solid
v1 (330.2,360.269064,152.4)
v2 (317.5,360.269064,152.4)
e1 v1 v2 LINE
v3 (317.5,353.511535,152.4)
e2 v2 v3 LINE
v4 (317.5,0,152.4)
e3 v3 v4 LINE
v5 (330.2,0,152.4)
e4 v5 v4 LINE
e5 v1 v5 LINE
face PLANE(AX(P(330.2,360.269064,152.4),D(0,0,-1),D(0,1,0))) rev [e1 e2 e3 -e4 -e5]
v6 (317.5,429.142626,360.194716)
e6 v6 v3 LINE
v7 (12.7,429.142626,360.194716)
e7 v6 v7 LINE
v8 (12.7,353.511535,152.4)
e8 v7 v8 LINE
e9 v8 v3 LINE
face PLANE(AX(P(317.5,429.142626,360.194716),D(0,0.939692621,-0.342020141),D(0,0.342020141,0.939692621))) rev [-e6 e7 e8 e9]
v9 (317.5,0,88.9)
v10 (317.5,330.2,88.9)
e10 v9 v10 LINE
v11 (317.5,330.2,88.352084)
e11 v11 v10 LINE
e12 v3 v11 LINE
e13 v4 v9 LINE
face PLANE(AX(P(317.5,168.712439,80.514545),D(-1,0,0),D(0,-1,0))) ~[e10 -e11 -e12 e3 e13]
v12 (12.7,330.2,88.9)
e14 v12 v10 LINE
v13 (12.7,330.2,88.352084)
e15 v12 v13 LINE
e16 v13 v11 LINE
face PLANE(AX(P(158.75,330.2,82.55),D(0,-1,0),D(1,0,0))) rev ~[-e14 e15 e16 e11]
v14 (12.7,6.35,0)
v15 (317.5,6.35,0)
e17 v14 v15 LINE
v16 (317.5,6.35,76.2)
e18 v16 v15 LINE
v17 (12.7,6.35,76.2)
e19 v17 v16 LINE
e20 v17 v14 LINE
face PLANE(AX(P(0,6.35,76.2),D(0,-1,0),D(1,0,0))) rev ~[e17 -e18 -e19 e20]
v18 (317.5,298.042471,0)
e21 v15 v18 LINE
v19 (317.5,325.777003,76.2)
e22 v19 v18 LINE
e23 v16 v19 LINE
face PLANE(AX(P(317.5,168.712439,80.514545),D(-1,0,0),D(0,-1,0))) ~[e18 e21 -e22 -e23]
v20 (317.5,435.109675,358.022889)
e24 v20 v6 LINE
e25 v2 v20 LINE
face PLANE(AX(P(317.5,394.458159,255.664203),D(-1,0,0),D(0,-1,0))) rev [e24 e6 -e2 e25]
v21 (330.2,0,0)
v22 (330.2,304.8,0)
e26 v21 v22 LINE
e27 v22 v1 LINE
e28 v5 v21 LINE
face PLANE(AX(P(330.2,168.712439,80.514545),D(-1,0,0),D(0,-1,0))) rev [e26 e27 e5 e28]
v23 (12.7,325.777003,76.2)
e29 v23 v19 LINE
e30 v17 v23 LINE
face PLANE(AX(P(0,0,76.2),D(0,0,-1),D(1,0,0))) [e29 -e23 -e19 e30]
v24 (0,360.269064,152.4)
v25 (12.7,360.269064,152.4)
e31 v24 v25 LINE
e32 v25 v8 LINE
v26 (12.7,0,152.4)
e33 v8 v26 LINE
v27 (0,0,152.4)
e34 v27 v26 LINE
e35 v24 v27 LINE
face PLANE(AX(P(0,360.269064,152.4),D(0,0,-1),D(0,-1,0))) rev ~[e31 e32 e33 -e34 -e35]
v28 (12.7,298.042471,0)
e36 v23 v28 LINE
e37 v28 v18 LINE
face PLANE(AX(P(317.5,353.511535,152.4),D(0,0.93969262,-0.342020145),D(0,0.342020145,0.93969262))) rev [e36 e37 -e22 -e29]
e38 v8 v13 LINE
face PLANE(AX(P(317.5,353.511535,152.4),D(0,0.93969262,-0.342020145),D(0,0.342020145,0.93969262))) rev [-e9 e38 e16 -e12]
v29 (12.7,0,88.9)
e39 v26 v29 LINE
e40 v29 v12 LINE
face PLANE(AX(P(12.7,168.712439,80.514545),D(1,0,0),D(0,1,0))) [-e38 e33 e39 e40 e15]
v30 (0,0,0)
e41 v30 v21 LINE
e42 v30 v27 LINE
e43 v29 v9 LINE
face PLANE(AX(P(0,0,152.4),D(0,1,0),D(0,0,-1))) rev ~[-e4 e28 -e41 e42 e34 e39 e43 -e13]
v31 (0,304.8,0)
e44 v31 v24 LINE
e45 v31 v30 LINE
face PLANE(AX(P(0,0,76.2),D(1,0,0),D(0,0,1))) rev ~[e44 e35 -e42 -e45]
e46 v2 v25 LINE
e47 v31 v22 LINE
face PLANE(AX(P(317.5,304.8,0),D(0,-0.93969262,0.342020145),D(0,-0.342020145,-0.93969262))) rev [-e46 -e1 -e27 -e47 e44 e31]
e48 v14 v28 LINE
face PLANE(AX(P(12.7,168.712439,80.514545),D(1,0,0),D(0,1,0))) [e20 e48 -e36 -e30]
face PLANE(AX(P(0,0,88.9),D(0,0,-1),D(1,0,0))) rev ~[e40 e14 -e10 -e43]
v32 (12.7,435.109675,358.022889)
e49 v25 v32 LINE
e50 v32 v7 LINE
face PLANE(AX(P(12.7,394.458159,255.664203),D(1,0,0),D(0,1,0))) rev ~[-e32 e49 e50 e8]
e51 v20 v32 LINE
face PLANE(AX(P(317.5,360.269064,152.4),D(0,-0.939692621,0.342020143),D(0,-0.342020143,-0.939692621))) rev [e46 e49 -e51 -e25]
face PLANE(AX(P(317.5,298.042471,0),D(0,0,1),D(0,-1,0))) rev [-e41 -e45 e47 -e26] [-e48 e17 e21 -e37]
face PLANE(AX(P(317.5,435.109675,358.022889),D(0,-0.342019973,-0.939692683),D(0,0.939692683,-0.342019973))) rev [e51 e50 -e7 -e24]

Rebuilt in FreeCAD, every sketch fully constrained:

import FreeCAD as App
import Part
import Sketcher
Q = App.Units.Quantity

doc = App.newDocument("Part")
body = doc.addObject("PartDesign::Body", "Body")

sketch1 = body.newObject("Sketcher::SketchObject", "Sketch")
sketch1.AttachmentSupport = (doc.getObject("YZ_Plane"), [""])
sketch1.MapMode = "FlatFace"
sketch1.addGeometry(Part.LineSegment(App.Vector(0, 152, 0), App.Vector(0, 0, 0)), False)
sketch1.addGeometry(Part.LineSegment(App.Vector(0, 0, 0), App.Vector(305, 0, 0)), False)
sketch1.addGeometry(Part.LineSegment(App.Vector(305, 0, 0), App.Vector(360, 152, 0)), False)
sketch1.addGeometry(Part.LineSegment(App.Vector(360, 152, 0), App.Vector(0, 152, 0)), False)
sketch1.addConstraint(Sketcher.Constraint("Coincident", 0, 2, 1, 1))
sketch1.addConstraint(Sketcher.Constraint("Coincident", 1, 2, 2, 1))
sketch1.addConstraint(Sketcher.Constraint("Coincident", 2, 2, 3, 1))
sketch1.addConstraint(Sketcher.Constraint("Coincident", 3, 2, 0, 1))
sketch1.addConstraint(Sketcher.Constraint("Vertical", 0))
sketch1.addConstraint(Sketcher.Constraint("Horizontal", 1))
sketch1.addConstraint(Sketcher.Constraint("Horizontal", 3))
sketch1.addConstraint(Sketcher.Constraint("Coincident", 0, 2, -1, 1))
sketch1.addConstraint(Sketcher.Constraint("DistanceX", 1, 1, 1, 2, Q("12 in")))
sketch1.addConstraint(Sketcher.Constraint("DistanceY", 0, 2, 0, 1, Q("6 in")))
sketch1.addConstraint(Sketcher.Constraint("Angle", 2, Q("70 deg")))
pad1 = body.newObject("PartDesign::Pad", "Pad")
pad1.Profile = sketch1
pad1.Length = Q("0.5 in")

sketch2 = body.newObject("Sketcher::SketchObject", "Sketch001")
sketch2.AttachmentSupport = (doc.getObject("YZ_Plane"), [""])
sketch2.MapMode = "FlatFace"
sketch2.AttachmentOffset = App.Placement(App.Vector(0, 0, 0.5 * 25.4), App.Rotation())
sketch2.addGeometry(Part.LineSegment(App.Vector(429, 360, 0), App.Vector(354, 152, 0)), False)
sketch2.addGeometry(Part.LineSegment(App.Vector(354, 152, 0), App.Vector(298, 0, 0)), False)
sketch2.addGeometry(Part.LineSegment(App.Vector(298, 0, 0), App.Vector(305, 0, 0)), False)
sketch2.addGeometry(Part.LineSegment(App.Vector(305, 0, 0), App.Vector(360, 152, 0)), False)
sketch2.addGeometry(Part.LineSegment(App.Vector(360, 152, 0), App.Vector(435, 358, 0)), False)
sketch2.addGeometry(Part.LineSegment(App.Vector(435, 358, 0), App.Vector(429, 360, 0)), False)
sketch2.addConstraint(Sketcher.Constraint("Coincident", 0, 2, 1, 1))
sketch2.addConstraint(Sketcher.Constraint("Coincident", 1, 2, 2, 1))
sketch2.addConstraint(Sketcher.Constraint("Coincident", 2, 2, 3, 1))
sketch2.addConstraint(Sketcher.Constraint("Coincident", 3, 2, 4, 1))
sketch2.addConstraint(Sketcher.Constraint("Coincident", 4, 2, 5, 1))
sketch2.addConstraint(Sketcher.Constraint("Coincident", 5, 2, 0, 1))
sketch2.addConstraint(Sketcher.Constraint("Horizontal", 2))
sketch2.addConstraint(Sketcher.Constraint("PointOnObject", 1, 2, -1))
sketch2.addConstraint(Sketcher.Constraint("Parallel", 0, 1))
sketch2.addConstraint(Sketcher.Constraint("Parallel", 1, 3))
sketch2.addConstraint(Sketcher.Constraint("Parallel", 3, 4))
sketch2.addConstraint(Sketcher.Constraint("Perpendicular", 4, 5))
sketch2.addConstraint(Sketcher.Constraint("Horizontal", 0, 2, 3, 2))
sketch2.addConstraint(Sketcher.Constraint("DistanceY", -1, 1, 0, 2, Q("6 in")))
sketch2.addConstraint(Sketcher.Constraint("DistanceX", -1, 1, 2, 2, Q("12 in")))
sketch2.addConstraint(Sketcher.Constraint("Angle", 0, Q("-110 deg")))
sketch2.addConstraint(Sketcher.Constraint("Distance", 5, Q("0.25 in")))
sketch2.addConstraint(Sketcher.Constraint("DistanceY", -1, 1, 4, 2, Q("358.022889 mm")))
pad2 = body.newObject("PartDesign::Pad", "Pad001")
pad2.Profile = sketch2
pad2.Length = Q("6 in")
body2 = doc.addObject("PartDesign::Body", "Body001")
doc.recompute()

body2.BaseFeature = body
doc.recompute()

mirroring = doc.addObject("Part::Mirroring", "Mirroring")
mirroring.Source = body
mirroring.Base = App.Vector(165.1, 366.770487, 179.554949)
mirroring.Normal = App.Vector(1, 0, 0)
body3 = doc.addObject("PartDesign::Body", "Body002")
body3.BaseFeature = mirroring
boolean = body2.newObject("PartDesign::Boolean", "Boolean")
boolean.Type = "Fuse"
boolean.addObjects([body3])
doc.recompute()

sketch3 = body2.newObject("Sketcher::SketchObject", "Sketch002")
sketch3.AttachmentSupport = (doc.getObject("XZ_Plane001"), [""])
sketch3.MapMode = "FlatFace"
sketch3.addGeometry(Part.LineSegment(App.Vector(0, 89, 0), App.Vector(0, 76, 0)), False)
sketch3.addGeometry(Part.LineSegment(App.Vector(0, 76, 0), App.Vector(318, 76, 0)), False)
sketch3.addGeometry(Part.LineSegment(App.Vector(318, 76, 0), App.Vector(318, 89, 0)), False)
sketch3.addGeometry(Part.LineSegment(App.Vector(318, 89, 0), App.Vector(0, 89, 0)), False)
sketch3.addConstraint(Sketcher.Constraint("Coincident", 0, 2, 1, 1))
sketch3.addConstraint(Sketcher.Constraint("Coincident", 1, 2, 2, 1))
sketch3.addConstraint(Sketcher.Constraint("Coincident", 2, 2, 3, 1))
sketch3.addConstraint(Sketcher.Constraint("Coincident", 3, 2, 0, 1))
sketch3.addConstraint(Sketcher.Constraint("Vertical", 0))
sketch3.addConstraint(Sketcher.Constraint("Horizontal", 1))
sketch3.addConstraint(Sketcher.Constraint("Vertical", 2))
sketch3.addConstraint(Sketcher.Constraint("Horizontal", 3))
sketch3.addConstraint(Sketcher.Constraint("PointOnObject", 0, 2, -2))
sketch3.addConstraint(Sketcher.Constraint("DistanceX", 1, 1, 1, 2, Q("12.5 in")))
sketch3.addConstraint(Sketcher.Constraint("DistanceY", 0, 2, 0, 1, Q("0.5 in")))
sketch3.addConstraint(Sketcher.Constraint("DistanceY", -1, 1, 0, 2, Q("3 in")))
pad3 = body2.newObject("PartDesign::Pad", "Pad002")
pad3.Profile = sketch3
pad3.Length = Q("13 in")
pad3.Reversed = True

sketch4 = body2.newObject("Sketcher::SketchObject", "Sketch003")
sketch4.AttachmentSupport = (doc.getObject("XY_Plane001"), [""])
sketch4.MapMode = "FlatFace"
sketch4.AttachmentOffset = App.Placement(App.Vector(0, 0, 3 * 25.4), App.Rotation())
sketch4.addGeometry(Part.LineSegment(App.Vector(0, 0, 0), App.Vector(0, 6, 0)), False)
sketch4.addGeometry(Part.LineSegment(App.Vector(0, 6, 0), App.Vector(318, 6, 0)), False)
sketch4.addGeometry(Part.LineSegment(App.Vector(318, 6, 0), App.Vector(318, 0, 0)), False)
sketch4.addGeometry(Part.LineSegment(App.Vector(318, 0, 0), App.Vector(0, 0, 0)), False)
sketch4.addConstraint(Sketcher.Constraint("Coincident", 0, 2, 1, 1))
sketch4.addConstraint(Sketcher.Constraint("Coincident", 1, 2, 2, 1))
sketch4.addConstraint(Sketcher.Constraint("Coincident", 2, 2, 3, 1))
sketch4.addConstraint(Sketcher.Constraint("Coincident", 3, 2, 0, 1))
sketch4.addConstraint(Sketcher.Constraint("Vertical", 0))
sketch4.addConstraint(Sketcher.Constraint("Horizontal", 1))
sketch4.addConstraint(Sketcher.Constraint("Vertical", 2))
sketch4.addConstraint(Sketcher.Constraint("Horizontal", 3))
sketch4.addConstraint(Sketcher.Constraint("Coincident", 3, 2, -1, 1))
sketch4.addConstraint(Sketcher.Constraint("DistanceX", 1, 1, 1, 2, Q("12.5 in")))
sketch4.addConstraint(Sketcher.Constraint("DistanceY", 0, 1, 0, 2, Q("0.25 in")))
pad4 = body2.newObject("PartDesign::Pad", "Pad003")
pad4.Profile = sketch4
pad4.Length = Q("3 in")
pad4.Reversed = True
mirroring.Visibility = False

doc.recompute()
